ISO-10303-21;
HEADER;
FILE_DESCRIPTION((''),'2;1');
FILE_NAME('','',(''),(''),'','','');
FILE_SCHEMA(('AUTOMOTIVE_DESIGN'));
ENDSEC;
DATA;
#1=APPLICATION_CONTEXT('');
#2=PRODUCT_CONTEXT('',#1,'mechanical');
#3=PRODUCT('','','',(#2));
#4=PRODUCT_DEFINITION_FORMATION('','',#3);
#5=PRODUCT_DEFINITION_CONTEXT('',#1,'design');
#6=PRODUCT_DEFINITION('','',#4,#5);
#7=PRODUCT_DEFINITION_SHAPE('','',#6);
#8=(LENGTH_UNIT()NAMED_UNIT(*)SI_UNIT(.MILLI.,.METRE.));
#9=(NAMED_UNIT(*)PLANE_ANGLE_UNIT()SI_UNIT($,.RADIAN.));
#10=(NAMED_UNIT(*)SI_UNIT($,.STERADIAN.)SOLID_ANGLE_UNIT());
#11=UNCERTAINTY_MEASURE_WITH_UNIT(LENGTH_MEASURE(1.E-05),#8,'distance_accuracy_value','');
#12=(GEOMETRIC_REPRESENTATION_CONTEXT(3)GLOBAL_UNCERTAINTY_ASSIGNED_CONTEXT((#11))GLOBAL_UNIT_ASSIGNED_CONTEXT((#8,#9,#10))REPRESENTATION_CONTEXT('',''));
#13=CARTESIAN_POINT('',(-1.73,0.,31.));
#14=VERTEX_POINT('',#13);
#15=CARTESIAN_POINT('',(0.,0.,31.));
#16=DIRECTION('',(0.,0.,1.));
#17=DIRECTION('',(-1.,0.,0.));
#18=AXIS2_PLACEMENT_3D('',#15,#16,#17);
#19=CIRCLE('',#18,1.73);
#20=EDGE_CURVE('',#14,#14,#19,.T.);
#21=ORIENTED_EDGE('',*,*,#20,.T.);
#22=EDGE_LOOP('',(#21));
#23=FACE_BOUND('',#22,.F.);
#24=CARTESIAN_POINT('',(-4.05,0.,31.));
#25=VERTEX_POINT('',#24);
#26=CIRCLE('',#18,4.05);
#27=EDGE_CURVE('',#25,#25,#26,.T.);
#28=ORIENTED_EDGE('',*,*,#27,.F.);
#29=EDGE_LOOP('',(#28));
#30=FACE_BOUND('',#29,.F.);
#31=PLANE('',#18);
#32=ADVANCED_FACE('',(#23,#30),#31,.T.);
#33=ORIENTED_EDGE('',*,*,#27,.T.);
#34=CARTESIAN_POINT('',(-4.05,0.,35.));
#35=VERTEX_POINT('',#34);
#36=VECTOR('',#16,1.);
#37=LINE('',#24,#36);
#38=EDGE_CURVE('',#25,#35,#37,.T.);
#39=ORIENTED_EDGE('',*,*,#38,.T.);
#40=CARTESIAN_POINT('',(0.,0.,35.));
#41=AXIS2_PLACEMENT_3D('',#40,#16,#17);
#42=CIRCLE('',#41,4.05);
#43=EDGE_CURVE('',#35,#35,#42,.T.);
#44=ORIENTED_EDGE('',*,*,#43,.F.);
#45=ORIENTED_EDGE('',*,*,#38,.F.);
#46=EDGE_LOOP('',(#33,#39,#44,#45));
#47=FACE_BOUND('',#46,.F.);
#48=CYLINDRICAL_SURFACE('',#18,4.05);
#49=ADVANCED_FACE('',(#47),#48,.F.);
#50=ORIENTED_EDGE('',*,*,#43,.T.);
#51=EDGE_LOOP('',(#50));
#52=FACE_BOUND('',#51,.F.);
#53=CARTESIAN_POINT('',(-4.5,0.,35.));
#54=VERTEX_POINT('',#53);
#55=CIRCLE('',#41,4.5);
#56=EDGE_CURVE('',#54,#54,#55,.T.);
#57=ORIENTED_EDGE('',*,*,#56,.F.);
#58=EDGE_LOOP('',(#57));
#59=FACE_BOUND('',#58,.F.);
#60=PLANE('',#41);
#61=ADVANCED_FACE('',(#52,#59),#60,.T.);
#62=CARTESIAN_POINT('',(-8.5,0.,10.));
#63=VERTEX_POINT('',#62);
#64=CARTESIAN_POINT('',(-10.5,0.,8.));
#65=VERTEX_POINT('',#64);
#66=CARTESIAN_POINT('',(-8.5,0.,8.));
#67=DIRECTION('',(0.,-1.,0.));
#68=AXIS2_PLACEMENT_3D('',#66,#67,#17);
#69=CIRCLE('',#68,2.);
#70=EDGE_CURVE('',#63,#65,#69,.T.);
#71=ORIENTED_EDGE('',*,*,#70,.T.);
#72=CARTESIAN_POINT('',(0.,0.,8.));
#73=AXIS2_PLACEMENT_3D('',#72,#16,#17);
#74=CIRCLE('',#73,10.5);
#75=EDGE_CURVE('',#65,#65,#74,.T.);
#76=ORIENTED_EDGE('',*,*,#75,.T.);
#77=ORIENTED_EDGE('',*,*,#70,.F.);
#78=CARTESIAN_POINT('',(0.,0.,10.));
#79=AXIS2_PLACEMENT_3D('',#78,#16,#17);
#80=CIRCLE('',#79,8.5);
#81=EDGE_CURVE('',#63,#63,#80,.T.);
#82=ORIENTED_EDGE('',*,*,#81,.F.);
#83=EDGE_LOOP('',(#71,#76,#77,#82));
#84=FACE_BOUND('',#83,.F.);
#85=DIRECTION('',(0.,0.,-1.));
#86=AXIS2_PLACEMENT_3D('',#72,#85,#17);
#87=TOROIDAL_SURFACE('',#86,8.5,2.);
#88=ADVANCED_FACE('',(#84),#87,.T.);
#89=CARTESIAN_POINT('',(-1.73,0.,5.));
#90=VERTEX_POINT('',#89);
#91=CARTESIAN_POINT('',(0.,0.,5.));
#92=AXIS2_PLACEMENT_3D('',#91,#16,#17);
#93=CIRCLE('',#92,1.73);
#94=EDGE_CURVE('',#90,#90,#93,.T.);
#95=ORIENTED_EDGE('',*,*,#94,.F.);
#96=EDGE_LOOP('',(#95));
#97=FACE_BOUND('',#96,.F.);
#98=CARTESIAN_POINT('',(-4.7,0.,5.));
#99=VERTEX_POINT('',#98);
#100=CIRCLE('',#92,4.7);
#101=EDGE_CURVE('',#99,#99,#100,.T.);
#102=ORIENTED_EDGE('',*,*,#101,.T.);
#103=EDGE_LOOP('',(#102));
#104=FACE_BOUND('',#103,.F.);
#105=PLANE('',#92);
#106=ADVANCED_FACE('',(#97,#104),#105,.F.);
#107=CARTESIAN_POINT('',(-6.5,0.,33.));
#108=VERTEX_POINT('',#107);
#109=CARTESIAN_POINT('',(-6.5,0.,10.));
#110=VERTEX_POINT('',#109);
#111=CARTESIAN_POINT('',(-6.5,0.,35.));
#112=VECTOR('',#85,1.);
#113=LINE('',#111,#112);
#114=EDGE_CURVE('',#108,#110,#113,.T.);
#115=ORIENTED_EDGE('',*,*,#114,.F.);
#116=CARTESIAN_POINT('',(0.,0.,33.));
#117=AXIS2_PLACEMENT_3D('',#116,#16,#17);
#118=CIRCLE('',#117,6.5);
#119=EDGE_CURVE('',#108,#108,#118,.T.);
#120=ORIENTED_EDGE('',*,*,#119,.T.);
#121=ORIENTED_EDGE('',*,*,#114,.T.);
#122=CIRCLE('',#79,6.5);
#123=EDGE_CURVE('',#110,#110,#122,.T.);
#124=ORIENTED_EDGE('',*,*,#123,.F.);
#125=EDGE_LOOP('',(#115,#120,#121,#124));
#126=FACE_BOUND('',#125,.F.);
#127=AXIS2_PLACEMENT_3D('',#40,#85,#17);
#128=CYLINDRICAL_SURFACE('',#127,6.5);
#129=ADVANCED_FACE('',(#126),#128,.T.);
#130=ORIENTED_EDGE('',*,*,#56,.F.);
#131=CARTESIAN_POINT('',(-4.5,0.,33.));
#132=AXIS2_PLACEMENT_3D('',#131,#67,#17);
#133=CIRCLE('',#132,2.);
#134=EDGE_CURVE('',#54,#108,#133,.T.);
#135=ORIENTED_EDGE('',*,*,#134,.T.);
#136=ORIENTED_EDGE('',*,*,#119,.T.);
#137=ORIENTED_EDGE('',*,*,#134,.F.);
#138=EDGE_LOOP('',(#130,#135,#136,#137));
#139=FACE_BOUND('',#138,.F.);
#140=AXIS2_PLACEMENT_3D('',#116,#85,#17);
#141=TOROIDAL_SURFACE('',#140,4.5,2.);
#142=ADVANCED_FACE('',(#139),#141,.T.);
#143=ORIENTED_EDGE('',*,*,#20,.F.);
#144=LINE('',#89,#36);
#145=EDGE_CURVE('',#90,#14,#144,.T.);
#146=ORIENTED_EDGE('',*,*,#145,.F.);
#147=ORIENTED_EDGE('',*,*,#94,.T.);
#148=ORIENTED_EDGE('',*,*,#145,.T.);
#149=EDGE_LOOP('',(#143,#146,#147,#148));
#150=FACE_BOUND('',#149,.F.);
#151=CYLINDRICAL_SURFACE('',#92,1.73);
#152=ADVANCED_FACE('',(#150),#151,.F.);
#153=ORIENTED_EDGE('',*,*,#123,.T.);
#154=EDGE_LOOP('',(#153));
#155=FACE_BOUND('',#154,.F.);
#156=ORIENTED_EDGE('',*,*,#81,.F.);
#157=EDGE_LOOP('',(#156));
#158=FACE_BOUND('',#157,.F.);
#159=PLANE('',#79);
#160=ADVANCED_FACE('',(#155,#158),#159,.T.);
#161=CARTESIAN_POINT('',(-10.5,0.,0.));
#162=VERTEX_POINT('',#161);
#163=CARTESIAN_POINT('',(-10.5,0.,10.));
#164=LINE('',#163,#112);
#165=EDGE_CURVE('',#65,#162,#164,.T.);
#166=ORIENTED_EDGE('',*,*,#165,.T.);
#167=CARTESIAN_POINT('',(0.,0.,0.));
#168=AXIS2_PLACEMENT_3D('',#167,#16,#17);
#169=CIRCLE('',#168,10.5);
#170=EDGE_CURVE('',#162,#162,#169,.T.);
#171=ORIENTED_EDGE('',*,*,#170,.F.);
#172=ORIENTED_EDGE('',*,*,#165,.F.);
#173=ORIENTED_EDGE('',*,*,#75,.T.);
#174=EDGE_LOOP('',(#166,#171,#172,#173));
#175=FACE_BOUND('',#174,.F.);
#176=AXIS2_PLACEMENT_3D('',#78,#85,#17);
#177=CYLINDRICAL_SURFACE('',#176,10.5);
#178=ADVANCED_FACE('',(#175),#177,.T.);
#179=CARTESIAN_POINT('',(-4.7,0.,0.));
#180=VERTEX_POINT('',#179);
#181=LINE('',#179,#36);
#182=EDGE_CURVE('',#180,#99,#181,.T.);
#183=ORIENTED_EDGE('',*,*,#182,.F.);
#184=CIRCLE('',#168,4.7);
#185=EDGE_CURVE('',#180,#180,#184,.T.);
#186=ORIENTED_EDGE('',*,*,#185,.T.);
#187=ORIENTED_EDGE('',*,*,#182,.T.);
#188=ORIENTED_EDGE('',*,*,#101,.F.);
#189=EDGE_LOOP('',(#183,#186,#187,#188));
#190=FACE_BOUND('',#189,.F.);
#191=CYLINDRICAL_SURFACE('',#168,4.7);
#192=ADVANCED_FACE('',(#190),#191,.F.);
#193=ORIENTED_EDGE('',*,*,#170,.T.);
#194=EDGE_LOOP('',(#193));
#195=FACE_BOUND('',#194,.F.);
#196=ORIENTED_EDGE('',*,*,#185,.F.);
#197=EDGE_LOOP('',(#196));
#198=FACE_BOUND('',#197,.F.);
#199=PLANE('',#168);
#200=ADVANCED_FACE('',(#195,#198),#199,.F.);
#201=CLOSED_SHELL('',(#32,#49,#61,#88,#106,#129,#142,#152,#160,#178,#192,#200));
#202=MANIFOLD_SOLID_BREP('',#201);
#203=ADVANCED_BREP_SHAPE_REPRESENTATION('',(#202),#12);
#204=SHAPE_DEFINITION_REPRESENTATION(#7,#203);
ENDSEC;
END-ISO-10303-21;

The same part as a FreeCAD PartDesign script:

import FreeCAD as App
import Part
import Sketcher
Q = App.Units.Quantity


def edges_at(feature, points):
    """Names of the edges that pass closest to the given points."""
    edges = feature.Shape.Edges
    near = lambda p: min(range(len(edges)), key=lambda i: edges[i].distToShape(Part.Vertex(*p))[0])
    return sorted({f"Edge{near(p) + 1}" for p in points})

doc = App.newDocument("Part")
params = doc.addObject("Spreadsheet::Sheet", "Params")
for row, (alias, value) in enumerate([
    ("sketch1_width", "4 mm"),
    ("sketch1_height", "5 mm"),
    ("sketch1_height2", "26 mm"),
    ("sketch1_height3", "25 mm"),
    ("sketch1_width2", "5.8 mm"),
    ("revolution_angle", "360 deg"),
    ("fillet_radius", "2 mm"),
], start=1):
    params.set(f"A{row}", alias)
    params.set(f"B{row}", "=" + value)
    params.setAlias(f"B{row}", alias)

body = doc.addObject("PartDesign::Body", "Body")

sketch1 = doc.addObject("Sketcher::SketchObject", "Sketch")
body.addObject(sketch1)
sketch1.AttachmentSupport = (doc.XZ_Plane, [""])
sketch1.MapMode = "FlatFace"
sketch1.addGeometry([
    Part.LineSegment(App.Vector(-10.5, 0, 0), App.Vector(-4.7, 0, 0)),
    Part.LineSegment(App.Vector(-4.7, 0, 0), App.Vector(-4.7, 5, 0)),
    Part.LineSegment(App.Vector(-4.7, 5, 0), App.Vector(-1.7, 5, 0)),
    Part.LineSegment(App.Vector(-1.7, 5, 0), App.Vector(-1.7, 31, 0)),
    Part.LineSegment(App.Vector(-1.7, 31, 0), App.Vector(-4, 31, 0)),
    Part.LineSegment(App.Vector(-4, 31, 0), App.Vector(-4, 35, 0)),
    Part.LineSegment(App.Vector(-4, 35, 0), App.Vector(-6.5, 35, 0)),
    Part.LineSegment(App.Vector(-6.5, 35, 0), App.Vector(-6.5, 10, 0)),
    Part.LineSegment(App.Vector(-6.5, 10, 0), App.Vector(-10.5, 10, 0)),
    Part.LineSegment(App.Vector(-10.5, 10, 0), App.Vector(-10.5, 0, 0)),
], False)
sketch1.addConstraint([
    Sketcher.Constraint("Coincident", 0, 2, 1, 1),
    Sketcher.Constraint("Coincident", 1, 2, 2, 1),
    Sketcher.Constraint("Coincident", 2, 2, 3, 1),
    Sketcher.Constraint("Coincident", 3, 2, 4, 1),
    Sketcher.Constraint("Coincident", 4, 2, 5, 1),
    Sketcher.Constraint("Coincident", 5, 2, 6, 1),
    Sketcher.Constraint("Coincident", 6, 2, 7, 1),
    Sketcher.Constraint("Coincident", 7, 2, 8, 1),
    Sketcher.Constraint("Coincident", 8, 2, 9, 1),
    Sketcher.Constraint("Coincident", 9, 2, 0, 1),
    Sketcher.Constraint("Horizontal", 0),
    Sketcher.Constraint("Vertical", 1),
    Sketcher.Constraint("Horizontal", 2),
    Sketcher.Constraint("Vertical", 3),
    Sketcher.Constraint("Horizontal", 4),
    Sketcher.Constraint("Vertical", 5),
    Sketcher.Constraint("Horizontal", 6),
    Sketcher.Constraint("Vertical", 7),
    Sketcher.Constraint("Horizontal", 8),
    Sketcher.Constraint("Vertical", 9),
    Sketcher.Constraint("PointOnObject", 0, 2, -1),
    Sketcher.Constraint("Equal", 8, 5),
    Sketcher.Constraint("DistanceX", 8, 2, 8, 1, Q("4 mm")),
    Sketcher.Constraint("DistanceY", 1, 1, 1, 2, Q("5 mm")),
    Sketcher.Constraint("DistanceY", 3, 1, 3, 2, Q("26 mm")),
    Sketcher.Constraint("DistanceY", 7, 2, 7, 1, Q("25 mm")),
    Sketcher.Constraint("DistanceX", 0, 1, 0, 2, Q("5.8 mm")),
    Sketcher.Constraint("DistanceX", 2, 1, 2, 2, Q("2.97 mm")),
    Sketcher.Constraint("DistanceX", 4, 2, 4, 1, Q("2.32 mm")),
    Sketcher.Constraint("DistanceX", 0, 2, -1, 1, Q("4.7 mm")),
])
sketch1.setExpression("Constraints[22]", "Params.sketch1_width")
sketch1.setExpression("Constraints[23]", "Params.sketch1_height")
sketch1.setExpression("Constraints[24]", "Params.sketch1_height2")
sketch1.setExpression("Constraints[25]", "Params.sketch1_height3")
sketch1.setExpression("Constraints[26]", "Params.sketch1_width2")
revolution = doc.addObject("PartDesign::Revolution", "Revolution")
body.addObject(revolution)
revolution.Profile = sketch1
revolution.ReferenceAxis = (sketch1, ["V_Axis"])
revolution.setExpression("Angle", "Params.revolution_angle")
doc.recompute()

fillet = doc.addObject("PartDesign::Fillet", "Fillet")
body.addObject(fillet)
fillet.Base = (revolution, edges_at(revolution, [(10.5, 0, 10), (6.5, 0, 35)]))
fillet.setExpression("Radius", "Params.fillet_radius")

doc.recompute()
